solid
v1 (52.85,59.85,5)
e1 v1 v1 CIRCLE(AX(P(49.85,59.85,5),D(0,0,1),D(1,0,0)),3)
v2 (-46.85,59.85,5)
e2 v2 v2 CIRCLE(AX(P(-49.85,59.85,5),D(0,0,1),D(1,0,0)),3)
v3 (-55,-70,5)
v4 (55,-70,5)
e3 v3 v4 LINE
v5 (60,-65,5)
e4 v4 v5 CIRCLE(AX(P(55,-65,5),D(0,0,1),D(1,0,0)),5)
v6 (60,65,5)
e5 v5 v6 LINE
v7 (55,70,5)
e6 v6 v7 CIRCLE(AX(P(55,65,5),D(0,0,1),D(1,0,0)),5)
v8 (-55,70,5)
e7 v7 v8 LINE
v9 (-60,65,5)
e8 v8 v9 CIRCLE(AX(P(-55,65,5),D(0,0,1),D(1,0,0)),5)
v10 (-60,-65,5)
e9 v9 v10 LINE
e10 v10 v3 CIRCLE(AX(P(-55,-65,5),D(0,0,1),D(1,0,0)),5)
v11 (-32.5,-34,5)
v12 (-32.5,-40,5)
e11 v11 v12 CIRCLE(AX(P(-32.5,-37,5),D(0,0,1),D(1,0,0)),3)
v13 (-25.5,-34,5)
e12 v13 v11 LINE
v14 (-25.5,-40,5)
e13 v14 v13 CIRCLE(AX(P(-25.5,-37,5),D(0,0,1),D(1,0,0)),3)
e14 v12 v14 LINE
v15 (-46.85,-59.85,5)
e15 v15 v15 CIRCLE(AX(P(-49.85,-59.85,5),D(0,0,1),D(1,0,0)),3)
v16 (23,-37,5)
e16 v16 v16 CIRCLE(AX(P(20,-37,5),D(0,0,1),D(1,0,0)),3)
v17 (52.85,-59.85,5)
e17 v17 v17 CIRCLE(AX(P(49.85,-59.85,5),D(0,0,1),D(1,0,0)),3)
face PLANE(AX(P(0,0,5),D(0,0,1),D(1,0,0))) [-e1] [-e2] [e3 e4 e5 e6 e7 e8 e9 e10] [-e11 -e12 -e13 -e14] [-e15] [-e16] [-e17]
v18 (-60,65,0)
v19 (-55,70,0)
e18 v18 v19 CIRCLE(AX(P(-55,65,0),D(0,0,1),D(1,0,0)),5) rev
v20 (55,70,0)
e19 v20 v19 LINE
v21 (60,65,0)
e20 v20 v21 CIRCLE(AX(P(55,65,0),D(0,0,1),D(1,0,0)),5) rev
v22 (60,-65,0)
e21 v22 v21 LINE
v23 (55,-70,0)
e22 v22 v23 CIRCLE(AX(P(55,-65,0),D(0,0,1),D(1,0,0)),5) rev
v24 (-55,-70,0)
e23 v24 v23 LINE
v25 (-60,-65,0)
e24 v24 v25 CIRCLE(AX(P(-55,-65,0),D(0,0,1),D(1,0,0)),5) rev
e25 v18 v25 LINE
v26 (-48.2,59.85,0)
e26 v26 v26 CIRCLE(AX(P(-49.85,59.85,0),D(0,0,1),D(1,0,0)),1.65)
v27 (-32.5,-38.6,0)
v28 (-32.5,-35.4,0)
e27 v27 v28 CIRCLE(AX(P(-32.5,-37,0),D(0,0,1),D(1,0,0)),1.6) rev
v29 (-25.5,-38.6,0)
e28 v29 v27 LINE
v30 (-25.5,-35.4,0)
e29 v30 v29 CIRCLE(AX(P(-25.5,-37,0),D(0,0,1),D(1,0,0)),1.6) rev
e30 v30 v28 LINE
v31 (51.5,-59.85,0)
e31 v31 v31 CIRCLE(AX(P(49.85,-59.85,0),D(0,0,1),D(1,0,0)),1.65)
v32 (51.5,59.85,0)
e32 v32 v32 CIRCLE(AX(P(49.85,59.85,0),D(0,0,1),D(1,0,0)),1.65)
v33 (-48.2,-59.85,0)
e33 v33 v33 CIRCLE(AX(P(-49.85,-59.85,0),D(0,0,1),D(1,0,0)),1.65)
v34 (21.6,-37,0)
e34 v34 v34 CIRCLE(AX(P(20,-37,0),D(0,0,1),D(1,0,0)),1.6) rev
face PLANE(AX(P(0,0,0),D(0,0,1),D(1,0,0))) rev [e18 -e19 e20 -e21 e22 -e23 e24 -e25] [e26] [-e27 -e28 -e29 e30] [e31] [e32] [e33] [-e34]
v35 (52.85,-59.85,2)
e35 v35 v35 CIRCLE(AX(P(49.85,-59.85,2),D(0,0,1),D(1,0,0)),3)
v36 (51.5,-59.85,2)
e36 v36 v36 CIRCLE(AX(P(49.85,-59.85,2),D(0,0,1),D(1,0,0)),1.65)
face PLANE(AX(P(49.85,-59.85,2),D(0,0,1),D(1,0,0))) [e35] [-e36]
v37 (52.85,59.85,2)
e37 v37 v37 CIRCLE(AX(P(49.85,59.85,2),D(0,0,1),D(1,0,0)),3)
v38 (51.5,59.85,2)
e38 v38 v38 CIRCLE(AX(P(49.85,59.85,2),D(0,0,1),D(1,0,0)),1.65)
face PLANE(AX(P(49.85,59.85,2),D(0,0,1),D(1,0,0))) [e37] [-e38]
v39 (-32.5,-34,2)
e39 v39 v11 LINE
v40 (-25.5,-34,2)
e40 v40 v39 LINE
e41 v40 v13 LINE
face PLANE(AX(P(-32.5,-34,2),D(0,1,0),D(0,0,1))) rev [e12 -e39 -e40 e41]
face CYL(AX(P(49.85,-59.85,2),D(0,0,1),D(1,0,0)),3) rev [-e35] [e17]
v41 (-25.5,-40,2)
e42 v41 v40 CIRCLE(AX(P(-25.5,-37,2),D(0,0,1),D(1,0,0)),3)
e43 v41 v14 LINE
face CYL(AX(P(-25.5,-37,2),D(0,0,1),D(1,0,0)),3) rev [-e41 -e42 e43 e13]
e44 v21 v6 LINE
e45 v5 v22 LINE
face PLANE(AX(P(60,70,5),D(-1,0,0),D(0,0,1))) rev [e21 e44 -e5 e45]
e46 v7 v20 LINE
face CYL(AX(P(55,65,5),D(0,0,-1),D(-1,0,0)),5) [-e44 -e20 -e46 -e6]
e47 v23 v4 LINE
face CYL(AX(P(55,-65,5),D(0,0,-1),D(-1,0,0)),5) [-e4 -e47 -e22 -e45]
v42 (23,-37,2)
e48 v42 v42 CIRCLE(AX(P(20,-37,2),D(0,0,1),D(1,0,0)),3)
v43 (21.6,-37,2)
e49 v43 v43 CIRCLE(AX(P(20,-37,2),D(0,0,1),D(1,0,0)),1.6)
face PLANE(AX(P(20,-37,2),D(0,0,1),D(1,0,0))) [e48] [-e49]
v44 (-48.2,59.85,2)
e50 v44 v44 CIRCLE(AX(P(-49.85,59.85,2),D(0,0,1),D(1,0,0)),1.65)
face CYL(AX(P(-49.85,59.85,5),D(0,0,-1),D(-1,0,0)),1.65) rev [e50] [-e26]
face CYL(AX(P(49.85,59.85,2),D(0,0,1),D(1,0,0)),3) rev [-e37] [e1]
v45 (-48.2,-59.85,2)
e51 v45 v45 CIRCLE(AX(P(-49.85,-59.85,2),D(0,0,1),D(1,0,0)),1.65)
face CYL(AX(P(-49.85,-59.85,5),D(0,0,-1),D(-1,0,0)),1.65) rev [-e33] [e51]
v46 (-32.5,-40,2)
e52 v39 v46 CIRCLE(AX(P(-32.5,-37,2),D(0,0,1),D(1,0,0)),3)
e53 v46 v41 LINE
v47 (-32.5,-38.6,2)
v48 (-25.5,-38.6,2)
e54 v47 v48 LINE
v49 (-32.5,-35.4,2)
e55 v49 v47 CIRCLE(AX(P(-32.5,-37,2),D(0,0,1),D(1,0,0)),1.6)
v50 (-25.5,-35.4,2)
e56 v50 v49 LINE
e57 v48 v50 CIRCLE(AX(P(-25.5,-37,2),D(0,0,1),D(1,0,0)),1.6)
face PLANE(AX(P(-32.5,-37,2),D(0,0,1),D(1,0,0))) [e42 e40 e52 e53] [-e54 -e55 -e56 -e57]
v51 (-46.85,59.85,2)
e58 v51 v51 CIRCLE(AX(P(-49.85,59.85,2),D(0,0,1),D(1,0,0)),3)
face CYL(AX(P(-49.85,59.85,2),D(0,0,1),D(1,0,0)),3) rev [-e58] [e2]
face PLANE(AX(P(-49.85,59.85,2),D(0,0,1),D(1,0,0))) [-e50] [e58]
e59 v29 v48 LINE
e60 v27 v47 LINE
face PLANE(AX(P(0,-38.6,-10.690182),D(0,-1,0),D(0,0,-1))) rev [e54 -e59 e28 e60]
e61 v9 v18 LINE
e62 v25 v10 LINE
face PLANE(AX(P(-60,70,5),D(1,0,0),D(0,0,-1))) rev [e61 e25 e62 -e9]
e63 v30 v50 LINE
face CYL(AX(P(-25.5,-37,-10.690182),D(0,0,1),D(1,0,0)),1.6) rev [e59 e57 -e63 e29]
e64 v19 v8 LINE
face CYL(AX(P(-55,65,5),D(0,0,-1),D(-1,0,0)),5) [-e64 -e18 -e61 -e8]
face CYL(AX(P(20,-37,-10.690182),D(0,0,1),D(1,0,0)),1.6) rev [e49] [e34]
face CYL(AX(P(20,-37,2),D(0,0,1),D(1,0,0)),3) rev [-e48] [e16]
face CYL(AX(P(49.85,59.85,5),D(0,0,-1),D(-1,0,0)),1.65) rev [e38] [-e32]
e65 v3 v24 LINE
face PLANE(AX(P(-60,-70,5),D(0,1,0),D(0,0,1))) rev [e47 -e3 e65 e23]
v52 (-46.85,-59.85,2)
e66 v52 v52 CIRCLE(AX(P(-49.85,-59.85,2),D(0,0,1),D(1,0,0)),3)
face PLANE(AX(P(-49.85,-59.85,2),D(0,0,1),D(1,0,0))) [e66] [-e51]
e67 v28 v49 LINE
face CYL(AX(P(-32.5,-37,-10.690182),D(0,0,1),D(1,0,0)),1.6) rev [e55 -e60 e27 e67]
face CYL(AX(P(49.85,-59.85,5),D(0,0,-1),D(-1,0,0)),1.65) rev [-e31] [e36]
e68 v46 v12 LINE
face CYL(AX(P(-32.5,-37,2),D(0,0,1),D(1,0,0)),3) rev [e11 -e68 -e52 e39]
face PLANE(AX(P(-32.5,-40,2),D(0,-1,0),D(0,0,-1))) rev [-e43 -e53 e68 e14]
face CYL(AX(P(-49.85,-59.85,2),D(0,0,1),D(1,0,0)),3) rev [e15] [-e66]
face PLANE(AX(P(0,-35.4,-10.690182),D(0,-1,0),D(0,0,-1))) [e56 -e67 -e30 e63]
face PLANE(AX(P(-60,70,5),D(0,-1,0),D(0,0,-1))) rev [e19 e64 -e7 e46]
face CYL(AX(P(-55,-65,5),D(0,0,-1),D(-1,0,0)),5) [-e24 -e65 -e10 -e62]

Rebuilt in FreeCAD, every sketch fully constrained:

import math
import FreeCAD as App
import Part
import Sketcher
Q = App.Units.Quantity


def edges_at(feature, points):
    """Names of the edges that pass closest to the given points."""
    edges = feature.Shape.Edges
    near = lambda p: min(range(len(edges)), key=lambda i: edges[i].distToShape(Part.Vertex(*p))[0])
    return sorted({f"Edge{near(p) + 1}" for p in points})


def add_polygon(sketch, points):
    """Adds a closed chain of lines whose ends are joined by coincident constraints."""
    first, n = sketch.GeometryCount, len(points)
    for a, b in zip(points, points[1:] + points[:1]):
        sketch.addGeometry(Part.LineSegment(App.Vector(*a, 0), App.Vector(*b, 0)), False)
    for i in range(n):
        sketch.addConstraint(Sketcher.Constraint("Coincident", first + i, 2, first + (i + 1) % n, 1))

doc = App.newDocument("Part")
body = doc.addObject("PartDesign::Body", "Body")

sketch1 = body.newObject("Sketcher::SketchObject", "Sketch")
sketch1.AttachmentSupport = (doc.getObject("XY_Plane"), [""])
sketch1.MapMode = "FlatFace"
add_polygon(sketch1, [(-60, 70), (-60, -70), (60, -70), (60, 70)])
sketch1.addGeometry(Part.Circle(App.Vector(-49.9, -59.9, 0), App.Vector(0, 0, 1), 1.6), False)
sketch1.addGeometry(Part.Circle(App.Vector(49.9, -59.9, 0), App.Vector(0, 0, 1), 1.6), False)
sketch1.addGeometry(Part.Circle(App.Vector(-49.9, 59.9, 0), App.Vector(0, 0, 1), 1.6), False)
sketch1.addGeometry(Part.Circle(App.Vector(49.9, 59.9, 0), App.Vector(0, 0, 1), 1.6), False)
sketch1.addConstraint([
    Sketcher.Constraint("Vertical", 0),
    Sketcher.Constraint("Horizontal", 1),
    Sketcher.Constraint("Vertical", 2),
    Sketcher.Constraint("Horizontal", 3),
    Sketcher.Constraint("Equal", 4, 5),
    Sketcher.Constraint("Equal", 5, 6),
    Sketcher.Constraint("Equal", 6, 7),
    Sketcher.Constraint("Symmetric", 5, 3, 6, 3, -1, 1),
    Sketcher.Constraint("Symmetric", 4, 3, 7, 3, -1, 1),
    Sketcher.Constraint("Symmetric", 0, 2, 2, 2, -1, 1),
    Sketcher.Constraint("Symmetric", 4, 3, 5, 3, -2),
    Sketcher.Constraint("Diameter", 4, Q("3.3 mm")),
    Sketcher.Constraint("DistanceX", 1, 1, 1, 2, Q("120 mm")),
    Sketcher.Constraint("DistanceY", 0, 2, 0, 1, Q("140 mm")),
    Sketcher.Constraint("DistanceX", 4, 3, 5, 3, Q("99.7 mm")),
    Sketcher.Constraint("DistanceY", 4, 3, 6, 3, Q("119.7 mm")),
])
pad1 = body.newObject("PartDesign::Pad", "Pad")
pad1.Profile = sketch1
pad1.Length = 5
doc.recompute()

fillet = body.newObject("PartDesign::Fillet", "Fillet")
fillet.Base = (pad1, edges_at(pad1, [
    (60, -70, 2.5),
    (-60, -70, 2.5),
    (-60, 70, 2.5),
    (60, 70, 2.5),
]))
fillet.Radius = 5

sketch2 = body.newObject("Sketcher::SketchObject", "Sketch001")
sketch2.AttachmentSupport = (doc.getObject("XY_Plane"), [""])
sketch2.MapMode = "FlatFace"
sketch2.AttachmentOffset = App.Placement(App.Vector(0, 0, 5), App.Rotation())
sketch2.addGeometry([
    Part.Circle(App.Vector(20, -37, 0), App.Vector(0, 0, 1), 1.6),
    Part.LineSegment(App.Vector(-25.5, -35.4, 0), App.Vector(-32.5, -35.4, 0)),
    Part.ArcOfCircle(Part.Circle(App.Vector(-32.5, -37, 0), App.Vector(0, 0, 1), 1.6), math.radians(90), math.radians(270)),
    Part.LineSegment(App.Vector(-32.5, -38.6, 0), App.Vector(-25.5, -38.6, 0)),
    Part.ArcOfCircle(Part.Circle(App.Vector(-25.5, -37, 0), App.Vector(0, 0, 1), 1.6), math.radians(-90), math.radians(90)),
], False)
sketch2.addConstraint([
    Sketcher.Constraint("Tangent", 1, 2, 2, 1),
    Sketcher.Constraint("Tangent", 2, 2, 3, 1),
    Sketcher.Constraint("Tangent", 3, 2, 4, 1),
    Sketcher.Constraint("Tangent", 4, 2, 1, 1),
    Sketcher.Constraint("Horizontal", 1),
    Sketcher.Constraint("Horizontal", 3),
    Sketcher.Constraint("Equal", 0, 2),
    Sketcher.Constraint("Horizontal", 0, 3, 2, 3),
    Sketcher.Constraint("Diameter", 0, Q("3.2 mm")),
    Sketcher.Constraint("DistanceX", 1, 2, 1, 1, Q("7 mm")),
    Sketcher.Constraint("DistanceX", -1, 1, 0, 3, Q("20 mm")),
    Sketcher.Constraint("DistanceY", 0, 3, -1, 1, Q("37 mm")),
    Sketcher.Constraint("DistanceX", 2, 3, -1, 1, Q("32.5 mm")),
])
pocket1 = body.newObject("PartDesign::Pocket", "Pocket")
pocket1.Profile = sketch2
pocket1.Length = 5

sketch3 = body.newObject("Sketcher::SketchObject", "Sketch002")
sketch3.AttachmentSupport = (doc.getObject("XY_Plane"), [""])
sketch3.MapMode = "FlatFace"
sketch3.AttachmentOffset = App.Placement(App.Vector(0, 0, 5), App.Rotation())
sketch3.addGeometry([
    Part.Circle(App.Vector(-49.9, 59.9, 0), App.Vector(0, 0, 1), 3),
    Part.Circle(App.Vector(49.9, 59.9, 0), App.Vector(0, 0, 1), 3),
    Part.Circle(App.Vector(49.9, -59.9, 0), App.Vector(0, 0, 1), 3),
    Part.Circle(App.Vector(-49.9, -59.9, 0), App.Vector(0, 0, 1), 3),
    Part.Circle(App.Vector(20, -37, 0), App.Vector(0, 0, 1), 3),
    Part.Circle(App.Vector(20, -37, 0), App.Vector(0, 0, 1), 1.6),
    Part.LineSegment(App.Vector(-25.5, -34, 0), App.Vector(-32.5, -34, 0)),
    Part.ArcOfCircle(Part.Circle(App.Vector(-32.5, -37, 0), App.Vector(0, 0, 1), 3), math.radians(90), math.radians(270)),
    Part.LineSegment(App.Vector(-32.5, -40, 0), App.Vector(-25.5, -40, 0)),
    Part.ArcOfCircle(Part.Circle(App.Vector(-25.5, -37, 0), App.Vector(0, 0, 1), 3), math.radians(-90), math.radians(90)),
    Part.LineSegment(App.Vector(-32.5, -35.4, 0), App.Vector(-25.5, -35.4, 0)),
    Part.ArcOfCircle(Part.Circle(App.Vector(-25.5, -37, 0), App.Vector(0, 0, 1), 1.6), math.radians(-90), math.radians(90)),
    Part.LineSegment(App.Vector(-25.5, -38.6, 0), App.Vector(-32.5, -38.6, 0)),
    Part.ArcOfCircle(Part.Circle(App.Vector(-32.5, -37, 0), App.Vector(0, 0, 1), 1.6), math.radians(90), math.radians(270)),
], False)
sketch3.addConstraint([
    Sketcher.Constraint("Tangent", 6, 2, 7, 1),
    Sketcher.Constraint("Tangent", 7, 2, 8, 1),
    Sketcher.Constraint("Tangent", 8, 2, 9, 1),
    Sketcher.Constraint("Tangent", 9, 2, 6, 1),
    Sketcher.Constraint("Tangent", 10, 2, 11, 2),
    Sketcher.Constraint("Tangent", 11, 1, 12, 1),
    Sketcher.Constraint("Tangent", 12, 2, 13, 2),
    Sketcher.Constraint("Tangent", 13, 1, 10, 1),
    Sketcher.Constraint("Horizontal", 6),
    Sketcher.Constraint("Horizontal", 8),
    Sketcher.Constraint("Horizontal", 10),
    Sketcher.Constraint("Horizontal", 12),
    Sketcher.Constraint("Coincident", 5, 3, 4, 3),
    Sketcher.Constraint("Coincident", 11, 3, 9, 3),
    Sketcher.Constraint("Equal", 0, 1),
    Sketcher.Constraint("Equal", 1, 2),
    Sketcher.Constraint("Equal", 2, 3),
    Sketcher.Constraint("Equal", 3, 4),
    Sketcher.Constraint("Equal", 4, 7),
    Sketcher.Constraint("Equal", 5, 11),
    Sketcher.Constraint("Symmetric", 0, 3, 2, 3, -1, 1),
    Sketcher.Constraint("Symmetric", 1, 3, 3, 3, -1, 1),
    Sketcher.Constraint("Symmetric", 0, 3, 1, 3, -2),
    Sketcher.Constraint("Horizontal", 5, 3, 7, 3),
    Sketcher.Constraint("Vertical", 13, 3, 6, 2),
    Sketcher.Constraint("Diameter", 0, Q("6 mm")),
    Sketcher.Constraint("Diameter", 5, Q("3.2 mm")),
    Sketcher.Constraint("DistanceX", 6, 2, 6, 1, Q("7 mm")),
    Sketcher.Constraint("DistanceX", -1, 1, 4, 3, Q("20 mm")),
    Sketcher.Constraint("DistanceY", 4, 3, -1, 1, Q("37 mm")),
    Sketcher.Constraint("DistanceX", 7, 3, -1, 1, Q("32.5 mm")),
    Sketcher.Constraint("DistanceX", 0, 3, 1, 3, Q("99.7 mm")),
    Sketcher.Constraint("DistanceY", 2, 3, 1, 3, Q("119.7 mm")),
])
pocket2 = body.newObject("PartDesign::Pocket", "Pocket001")
pocket2.Profile = sketch3
pocket2.Length = 3

doc.recompute()
